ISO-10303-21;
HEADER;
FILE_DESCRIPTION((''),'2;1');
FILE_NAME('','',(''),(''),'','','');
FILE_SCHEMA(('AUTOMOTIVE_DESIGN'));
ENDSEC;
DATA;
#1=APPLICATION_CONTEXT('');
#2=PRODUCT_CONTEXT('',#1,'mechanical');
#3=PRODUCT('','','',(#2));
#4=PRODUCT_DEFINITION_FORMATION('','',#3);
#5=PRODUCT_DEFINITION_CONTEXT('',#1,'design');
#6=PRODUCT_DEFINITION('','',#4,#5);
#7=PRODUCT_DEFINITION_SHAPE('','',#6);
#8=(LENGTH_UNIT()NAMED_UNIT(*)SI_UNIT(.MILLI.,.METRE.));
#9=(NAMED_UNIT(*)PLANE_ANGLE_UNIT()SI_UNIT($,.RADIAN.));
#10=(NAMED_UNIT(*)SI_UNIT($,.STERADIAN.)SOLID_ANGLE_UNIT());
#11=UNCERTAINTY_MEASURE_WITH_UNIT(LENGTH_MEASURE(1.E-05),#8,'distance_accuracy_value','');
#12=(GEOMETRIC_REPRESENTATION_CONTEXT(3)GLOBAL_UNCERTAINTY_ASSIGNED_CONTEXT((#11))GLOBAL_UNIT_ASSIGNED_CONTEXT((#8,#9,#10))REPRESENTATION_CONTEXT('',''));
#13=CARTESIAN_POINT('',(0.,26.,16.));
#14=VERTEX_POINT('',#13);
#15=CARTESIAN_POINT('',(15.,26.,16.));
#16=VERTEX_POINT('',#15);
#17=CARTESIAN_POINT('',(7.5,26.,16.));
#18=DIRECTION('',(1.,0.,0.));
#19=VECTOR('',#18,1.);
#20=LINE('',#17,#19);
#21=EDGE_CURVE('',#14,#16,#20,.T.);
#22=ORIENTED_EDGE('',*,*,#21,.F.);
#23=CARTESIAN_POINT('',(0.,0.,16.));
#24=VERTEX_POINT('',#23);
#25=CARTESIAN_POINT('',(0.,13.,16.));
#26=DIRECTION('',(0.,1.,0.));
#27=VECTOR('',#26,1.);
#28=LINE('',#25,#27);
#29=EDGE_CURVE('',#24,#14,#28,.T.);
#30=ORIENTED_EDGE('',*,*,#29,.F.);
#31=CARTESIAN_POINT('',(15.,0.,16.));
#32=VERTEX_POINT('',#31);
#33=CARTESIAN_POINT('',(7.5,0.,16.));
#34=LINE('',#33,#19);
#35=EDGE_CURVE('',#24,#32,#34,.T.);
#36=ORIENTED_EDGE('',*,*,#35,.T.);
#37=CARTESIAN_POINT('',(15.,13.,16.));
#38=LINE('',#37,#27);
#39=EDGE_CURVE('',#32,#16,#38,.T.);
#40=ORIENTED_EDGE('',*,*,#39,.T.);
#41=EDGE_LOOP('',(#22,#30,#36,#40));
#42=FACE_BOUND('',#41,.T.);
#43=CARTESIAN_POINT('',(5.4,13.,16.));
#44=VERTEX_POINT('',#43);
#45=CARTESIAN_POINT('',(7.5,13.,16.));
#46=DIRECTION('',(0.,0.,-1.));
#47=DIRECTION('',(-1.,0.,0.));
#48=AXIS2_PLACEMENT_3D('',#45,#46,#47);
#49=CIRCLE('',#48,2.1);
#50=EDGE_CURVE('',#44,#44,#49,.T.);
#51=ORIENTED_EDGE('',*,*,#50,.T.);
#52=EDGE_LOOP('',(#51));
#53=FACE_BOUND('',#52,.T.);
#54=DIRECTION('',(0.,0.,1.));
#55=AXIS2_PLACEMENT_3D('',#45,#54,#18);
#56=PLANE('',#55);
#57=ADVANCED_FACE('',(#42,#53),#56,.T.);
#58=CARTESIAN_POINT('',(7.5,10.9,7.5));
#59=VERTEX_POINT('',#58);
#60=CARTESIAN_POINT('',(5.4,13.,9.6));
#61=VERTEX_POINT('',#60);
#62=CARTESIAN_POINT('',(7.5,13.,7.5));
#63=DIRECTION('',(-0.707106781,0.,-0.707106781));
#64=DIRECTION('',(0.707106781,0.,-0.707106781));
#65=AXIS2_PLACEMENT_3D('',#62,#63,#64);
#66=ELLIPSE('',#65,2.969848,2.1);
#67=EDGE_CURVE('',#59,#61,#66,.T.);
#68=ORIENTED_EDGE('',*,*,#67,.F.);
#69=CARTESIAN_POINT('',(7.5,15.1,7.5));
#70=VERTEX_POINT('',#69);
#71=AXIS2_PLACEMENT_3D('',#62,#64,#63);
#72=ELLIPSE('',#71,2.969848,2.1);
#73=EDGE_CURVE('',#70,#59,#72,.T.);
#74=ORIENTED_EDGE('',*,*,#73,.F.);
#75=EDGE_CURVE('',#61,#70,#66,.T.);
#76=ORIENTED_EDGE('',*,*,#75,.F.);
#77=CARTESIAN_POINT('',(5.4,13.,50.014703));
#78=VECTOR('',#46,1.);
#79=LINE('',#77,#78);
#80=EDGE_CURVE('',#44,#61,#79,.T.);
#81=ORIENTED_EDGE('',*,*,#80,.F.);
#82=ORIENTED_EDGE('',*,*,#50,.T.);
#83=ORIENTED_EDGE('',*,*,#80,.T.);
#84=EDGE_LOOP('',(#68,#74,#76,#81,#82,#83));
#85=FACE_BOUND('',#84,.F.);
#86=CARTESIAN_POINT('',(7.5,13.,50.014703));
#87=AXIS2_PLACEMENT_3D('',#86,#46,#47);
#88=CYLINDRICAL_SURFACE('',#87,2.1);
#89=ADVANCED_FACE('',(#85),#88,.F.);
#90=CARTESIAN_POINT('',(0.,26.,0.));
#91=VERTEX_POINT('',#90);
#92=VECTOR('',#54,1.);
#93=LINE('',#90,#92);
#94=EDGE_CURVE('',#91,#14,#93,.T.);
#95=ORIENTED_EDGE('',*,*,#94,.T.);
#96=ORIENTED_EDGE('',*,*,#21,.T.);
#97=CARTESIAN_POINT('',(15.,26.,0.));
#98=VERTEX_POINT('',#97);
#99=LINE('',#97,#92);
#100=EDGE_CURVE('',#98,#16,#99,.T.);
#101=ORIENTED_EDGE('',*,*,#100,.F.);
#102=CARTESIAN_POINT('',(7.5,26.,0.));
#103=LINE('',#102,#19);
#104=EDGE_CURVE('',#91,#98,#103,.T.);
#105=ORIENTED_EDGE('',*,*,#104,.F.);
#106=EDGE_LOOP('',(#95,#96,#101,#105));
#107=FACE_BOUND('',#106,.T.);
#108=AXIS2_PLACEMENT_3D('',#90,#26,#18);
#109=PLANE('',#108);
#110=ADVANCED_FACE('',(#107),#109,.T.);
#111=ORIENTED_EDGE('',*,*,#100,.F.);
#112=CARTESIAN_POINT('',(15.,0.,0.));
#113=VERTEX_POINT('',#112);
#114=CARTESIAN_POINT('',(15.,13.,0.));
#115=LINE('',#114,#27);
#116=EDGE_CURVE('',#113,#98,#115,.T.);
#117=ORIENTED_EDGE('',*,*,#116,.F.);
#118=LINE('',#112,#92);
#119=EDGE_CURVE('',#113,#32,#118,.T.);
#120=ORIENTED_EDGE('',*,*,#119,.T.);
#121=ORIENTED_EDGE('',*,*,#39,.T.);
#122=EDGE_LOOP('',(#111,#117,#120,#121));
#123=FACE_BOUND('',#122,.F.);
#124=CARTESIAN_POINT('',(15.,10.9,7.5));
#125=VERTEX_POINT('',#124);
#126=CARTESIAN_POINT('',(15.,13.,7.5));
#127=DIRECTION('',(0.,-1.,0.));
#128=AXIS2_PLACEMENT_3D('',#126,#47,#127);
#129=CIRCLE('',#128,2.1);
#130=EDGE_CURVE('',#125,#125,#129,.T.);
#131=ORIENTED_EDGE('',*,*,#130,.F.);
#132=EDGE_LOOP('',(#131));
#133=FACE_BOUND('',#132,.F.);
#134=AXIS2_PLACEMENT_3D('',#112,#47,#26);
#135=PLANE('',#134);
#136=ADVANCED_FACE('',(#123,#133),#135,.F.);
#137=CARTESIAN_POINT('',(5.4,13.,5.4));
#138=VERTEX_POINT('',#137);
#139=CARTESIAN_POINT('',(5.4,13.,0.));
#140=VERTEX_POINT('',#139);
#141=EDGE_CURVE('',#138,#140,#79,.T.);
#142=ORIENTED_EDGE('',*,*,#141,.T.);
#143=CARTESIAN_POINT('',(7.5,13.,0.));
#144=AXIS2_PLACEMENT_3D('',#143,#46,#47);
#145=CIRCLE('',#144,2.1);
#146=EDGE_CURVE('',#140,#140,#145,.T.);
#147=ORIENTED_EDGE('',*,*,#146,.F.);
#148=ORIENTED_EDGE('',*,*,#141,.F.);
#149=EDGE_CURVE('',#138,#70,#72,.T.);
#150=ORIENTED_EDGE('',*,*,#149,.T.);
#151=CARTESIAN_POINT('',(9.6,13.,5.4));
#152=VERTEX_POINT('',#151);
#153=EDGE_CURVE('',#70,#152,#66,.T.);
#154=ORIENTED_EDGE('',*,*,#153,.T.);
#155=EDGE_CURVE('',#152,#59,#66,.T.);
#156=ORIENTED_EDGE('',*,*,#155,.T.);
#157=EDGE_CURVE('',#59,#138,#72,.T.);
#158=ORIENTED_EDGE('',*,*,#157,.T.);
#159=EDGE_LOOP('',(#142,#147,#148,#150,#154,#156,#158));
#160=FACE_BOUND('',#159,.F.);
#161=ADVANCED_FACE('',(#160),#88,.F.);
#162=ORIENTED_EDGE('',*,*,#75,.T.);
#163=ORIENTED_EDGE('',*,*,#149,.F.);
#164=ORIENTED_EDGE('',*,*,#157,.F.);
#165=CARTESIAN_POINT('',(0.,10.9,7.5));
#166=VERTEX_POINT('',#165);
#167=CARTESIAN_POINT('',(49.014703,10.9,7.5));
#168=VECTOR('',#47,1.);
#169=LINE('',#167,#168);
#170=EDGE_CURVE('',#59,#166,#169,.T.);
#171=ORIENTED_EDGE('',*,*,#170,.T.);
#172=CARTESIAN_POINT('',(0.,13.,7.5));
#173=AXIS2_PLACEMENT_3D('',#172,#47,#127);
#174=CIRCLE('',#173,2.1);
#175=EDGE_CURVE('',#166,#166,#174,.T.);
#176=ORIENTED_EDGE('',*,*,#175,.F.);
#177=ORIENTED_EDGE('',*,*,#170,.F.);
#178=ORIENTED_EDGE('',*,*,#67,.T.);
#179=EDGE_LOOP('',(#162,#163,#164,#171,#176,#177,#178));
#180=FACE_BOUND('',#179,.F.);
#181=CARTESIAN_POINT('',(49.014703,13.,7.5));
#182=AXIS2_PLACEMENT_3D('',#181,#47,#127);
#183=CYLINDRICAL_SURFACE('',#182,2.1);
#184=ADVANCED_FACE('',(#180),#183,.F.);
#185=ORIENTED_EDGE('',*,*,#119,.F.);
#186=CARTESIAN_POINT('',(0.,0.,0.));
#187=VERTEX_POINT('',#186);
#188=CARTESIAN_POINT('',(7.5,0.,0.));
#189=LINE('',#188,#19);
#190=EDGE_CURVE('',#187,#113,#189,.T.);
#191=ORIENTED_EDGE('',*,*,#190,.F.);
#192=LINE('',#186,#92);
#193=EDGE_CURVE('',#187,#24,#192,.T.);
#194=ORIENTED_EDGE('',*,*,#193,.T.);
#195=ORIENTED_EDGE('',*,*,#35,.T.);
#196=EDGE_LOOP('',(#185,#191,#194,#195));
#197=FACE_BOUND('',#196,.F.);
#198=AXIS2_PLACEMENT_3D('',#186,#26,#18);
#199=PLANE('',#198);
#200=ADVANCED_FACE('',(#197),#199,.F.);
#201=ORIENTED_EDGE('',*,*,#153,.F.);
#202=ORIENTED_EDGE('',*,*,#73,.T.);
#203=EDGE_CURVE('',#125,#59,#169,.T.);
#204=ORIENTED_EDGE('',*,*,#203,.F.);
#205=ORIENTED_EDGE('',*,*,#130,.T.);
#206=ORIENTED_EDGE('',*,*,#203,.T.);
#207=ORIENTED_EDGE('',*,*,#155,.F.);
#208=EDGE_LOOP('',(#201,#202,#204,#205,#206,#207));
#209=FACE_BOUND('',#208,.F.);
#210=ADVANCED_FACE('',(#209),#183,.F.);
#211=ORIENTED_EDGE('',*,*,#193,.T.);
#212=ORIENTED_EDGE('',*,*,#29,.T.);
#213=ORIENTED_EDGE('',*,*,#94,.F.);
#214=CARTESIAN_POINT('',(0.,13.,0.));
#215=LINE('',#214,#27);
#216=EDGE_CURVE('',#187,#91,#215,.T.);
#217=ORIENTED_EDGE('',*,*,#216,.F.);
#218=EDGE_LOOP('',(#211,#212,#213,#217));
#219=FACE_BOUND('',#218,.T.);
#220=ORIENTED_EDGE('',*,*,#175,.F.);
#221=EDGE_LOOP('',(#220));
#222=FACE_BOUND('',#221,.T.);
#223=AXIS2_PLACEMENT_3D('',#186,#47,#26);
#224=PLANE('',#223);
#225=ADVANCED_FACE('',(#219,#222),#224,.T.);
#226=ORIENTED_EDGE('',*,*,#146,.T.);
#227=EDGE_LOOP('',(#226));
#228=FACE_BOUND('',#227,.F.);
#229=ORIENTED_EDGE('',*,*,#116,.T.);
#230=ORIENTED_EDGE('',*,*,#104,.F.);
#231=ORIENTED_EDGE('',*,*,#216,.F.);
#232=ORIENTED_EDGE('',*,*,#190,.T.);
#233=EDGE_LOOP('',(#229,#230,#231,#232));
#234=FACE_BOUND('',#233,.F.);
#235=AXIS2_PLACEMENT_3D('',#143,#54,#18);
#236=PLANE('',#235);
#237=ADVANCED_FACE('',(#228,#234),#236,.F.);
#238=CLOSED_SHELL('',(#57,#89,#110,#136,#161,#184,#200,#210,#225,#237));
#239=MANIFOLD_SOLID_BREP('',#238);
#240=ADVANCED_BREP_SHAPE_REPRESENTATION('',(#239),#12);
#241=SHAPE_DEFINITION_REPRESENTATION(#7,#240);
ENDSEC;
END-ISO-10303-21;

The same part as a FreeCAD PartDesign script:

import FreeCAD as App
import Part
import Sketcher
Q = App.Units.Quantity


def add_polygon(sketch, points):
    """Adds a closed chain of lines whose ends are joined by coincident constraints."""
    first, n = sketch.GeometryCount, len(points)
    for a, b in zip(points, points[1:] + points[:1]):
        sketch.addGeometry(Part.LineSegment(App.Vector(*a, 0), App.Vector(*b, 0)), False)
    for i in range(n):
        sketch.addConstraint(Sketcher.Constraint("Coincident", first + i, 2, first + (i + 1) % n, 1))

doc = App.newDocument("Part")
params = doc.addObject("Spreadsheet::Sheet", "Params")
for row, (alias, value) in enumerate([
    ("sketch1_width", "15 mm"),
    ("sketch1_height", "26 mm"),
    ("pad1_length", "16 mm"),
    ("sketch2_diameter", "4.2 mm"),
    ("hole_diameter", "4.2 mm"),
    ("sketch3_diameter", "4.2 mm"),
    ("hole2_diameter", "4.2 mm"),
], start=1):
    params.set(f"A{row}", alias)
    params.set(f"B{row}", "=" + value)
    params.setAlias(f"B{row}", alias)

body = doc.addObject("PartDesign::Body", "Body")

# Sketch on XY plane
sketch1 = doc.addObject("Sketcher::SketchObject", "Sketch")
body.addObject(sketch1)
sketch1.AttachmentSupport = (doc.XY_Plane, [""])
sketch1.MapMode = "FlatFace"
add_polygon(sketch1, [(0, 26), (0, 0), (15, 0), (15, 26)])  # lines 0-3
sketch1.addConstraint(Sketcher.Constraint("Vertical", 0))
sketch1.addConstraint(Sketcher.Constraint("Horizontal", 1))
sketch1.addConstraint(Sketcher.Constraint("Vertical", 2))
sketch1.addConstraint(Sketcher.Constraint("Horizontal", 3))
sketch1.addConstraint(Sketcher.Constraint("Coincident", 0, 2, -1, 1))
sketch1.addConstraint(Sketcher.Constraint("DistanceX", 1, 1, 1, 2, Q("15 mm")))
sketch1.addConstraint(Sketcher.Constraint("DistanceY", 0, 2, 0, 1, Q("26 mm")))
sketch1.setExpression("Constraints[9]", "Params.sketch1_width")
sketch1.setExpression("Constraints[10]", "Params.sketch1_height")
pad1 = doc.addObject("PartDesign::Pad", "Pad")
body.addObject(pad1)
pad1.Profile = sketch1
pad1.setExpression("Length", "Params.pad1_length")

# Sketch on XY plane
sketch2 = doc.addObject("Sketcher::SketchObject", "Sketch001")
body.addObject(sketch2)
sketch2.AttachmentSupport = (doc.XY_Plane, [""])
sketch2.MapMode = "FlatFace"
sketch2.AttachmentOffset = App.Placement(App.Vector(0, 0, 16), App.Rotation())
sketch2.addGeometry(Part.Circle(App.Vector(7.5, 13, 0), App.Vector(0, 0, 1), 2.1), False)
sketch2.addConstraint(Sketcher.Constraint("Diameter", 0, Q("4.2 mm")))
sketch2.addConstraint(Sketcher.Constraint("DistanceY", -1, 1, 0, 3, Q("13 mm")))
sketch2.addConstraint(Sketcher.Constraint("DistanceX", -1, 1, 0, 3, Q("7.5 mm")))
sketch2.setExpression("Constraints[0]", "Params.sketch2_diameter")
doc.recompute()
hole = doc.addObject("PartDesign::Hole", "Hole")
body.addObject(hole)
hole.Profile = sketch2
hole.ThreadType = "None"
hole.setExpression("Diameter", "Params.hole_diameter")
hole.DepthType = "ThroughAll"

# Sketch on YZ plane
sketch3 = doc.addObject("Sketcher::SketchObject", "Sketch002")
body.addObject(sketch3)
sketch3.AttachmentSupport = (doc.YZ_Plane, [""])
sketch3.MapMode = "FlatFace"
sketch3.AttachmentOffset = App.Placement(App.Vector(0, 0, 15), App.Rotation())
sketch3.addGeometry(Part.Circle(App.Vector(13, 7.5, 0), App.Vector(0, 0, 1), 2.1), False)
sketch3.addConstraint(Sketcher.Constraint("Diameter", 0, Q("4.2 mm")))
sketch3.addConstraint(Sketcher.Constraint("DistanceX", -1, 1, 0, 3, Q("13 mm")))
sketch3.addConstraint(Sketcher.Constraint("DistanceY", -1, 1, 0, 3, Q("7.5 mm")))
sketch3.setExpression("Constraints[0]", "Params.sketch3_diameter")
doc.recompute()
hole2 = doc.addObject("PartDesign::Hole", "Hole001")
body.addObject(hole2)
hole2.Profile = sketch3
hole2.ThreadType = "None"
hole2.setExpression("Diameter", "Params.hole2_diameter")
hole2.DepthType = "ThroughAll"

doc.recompute()
